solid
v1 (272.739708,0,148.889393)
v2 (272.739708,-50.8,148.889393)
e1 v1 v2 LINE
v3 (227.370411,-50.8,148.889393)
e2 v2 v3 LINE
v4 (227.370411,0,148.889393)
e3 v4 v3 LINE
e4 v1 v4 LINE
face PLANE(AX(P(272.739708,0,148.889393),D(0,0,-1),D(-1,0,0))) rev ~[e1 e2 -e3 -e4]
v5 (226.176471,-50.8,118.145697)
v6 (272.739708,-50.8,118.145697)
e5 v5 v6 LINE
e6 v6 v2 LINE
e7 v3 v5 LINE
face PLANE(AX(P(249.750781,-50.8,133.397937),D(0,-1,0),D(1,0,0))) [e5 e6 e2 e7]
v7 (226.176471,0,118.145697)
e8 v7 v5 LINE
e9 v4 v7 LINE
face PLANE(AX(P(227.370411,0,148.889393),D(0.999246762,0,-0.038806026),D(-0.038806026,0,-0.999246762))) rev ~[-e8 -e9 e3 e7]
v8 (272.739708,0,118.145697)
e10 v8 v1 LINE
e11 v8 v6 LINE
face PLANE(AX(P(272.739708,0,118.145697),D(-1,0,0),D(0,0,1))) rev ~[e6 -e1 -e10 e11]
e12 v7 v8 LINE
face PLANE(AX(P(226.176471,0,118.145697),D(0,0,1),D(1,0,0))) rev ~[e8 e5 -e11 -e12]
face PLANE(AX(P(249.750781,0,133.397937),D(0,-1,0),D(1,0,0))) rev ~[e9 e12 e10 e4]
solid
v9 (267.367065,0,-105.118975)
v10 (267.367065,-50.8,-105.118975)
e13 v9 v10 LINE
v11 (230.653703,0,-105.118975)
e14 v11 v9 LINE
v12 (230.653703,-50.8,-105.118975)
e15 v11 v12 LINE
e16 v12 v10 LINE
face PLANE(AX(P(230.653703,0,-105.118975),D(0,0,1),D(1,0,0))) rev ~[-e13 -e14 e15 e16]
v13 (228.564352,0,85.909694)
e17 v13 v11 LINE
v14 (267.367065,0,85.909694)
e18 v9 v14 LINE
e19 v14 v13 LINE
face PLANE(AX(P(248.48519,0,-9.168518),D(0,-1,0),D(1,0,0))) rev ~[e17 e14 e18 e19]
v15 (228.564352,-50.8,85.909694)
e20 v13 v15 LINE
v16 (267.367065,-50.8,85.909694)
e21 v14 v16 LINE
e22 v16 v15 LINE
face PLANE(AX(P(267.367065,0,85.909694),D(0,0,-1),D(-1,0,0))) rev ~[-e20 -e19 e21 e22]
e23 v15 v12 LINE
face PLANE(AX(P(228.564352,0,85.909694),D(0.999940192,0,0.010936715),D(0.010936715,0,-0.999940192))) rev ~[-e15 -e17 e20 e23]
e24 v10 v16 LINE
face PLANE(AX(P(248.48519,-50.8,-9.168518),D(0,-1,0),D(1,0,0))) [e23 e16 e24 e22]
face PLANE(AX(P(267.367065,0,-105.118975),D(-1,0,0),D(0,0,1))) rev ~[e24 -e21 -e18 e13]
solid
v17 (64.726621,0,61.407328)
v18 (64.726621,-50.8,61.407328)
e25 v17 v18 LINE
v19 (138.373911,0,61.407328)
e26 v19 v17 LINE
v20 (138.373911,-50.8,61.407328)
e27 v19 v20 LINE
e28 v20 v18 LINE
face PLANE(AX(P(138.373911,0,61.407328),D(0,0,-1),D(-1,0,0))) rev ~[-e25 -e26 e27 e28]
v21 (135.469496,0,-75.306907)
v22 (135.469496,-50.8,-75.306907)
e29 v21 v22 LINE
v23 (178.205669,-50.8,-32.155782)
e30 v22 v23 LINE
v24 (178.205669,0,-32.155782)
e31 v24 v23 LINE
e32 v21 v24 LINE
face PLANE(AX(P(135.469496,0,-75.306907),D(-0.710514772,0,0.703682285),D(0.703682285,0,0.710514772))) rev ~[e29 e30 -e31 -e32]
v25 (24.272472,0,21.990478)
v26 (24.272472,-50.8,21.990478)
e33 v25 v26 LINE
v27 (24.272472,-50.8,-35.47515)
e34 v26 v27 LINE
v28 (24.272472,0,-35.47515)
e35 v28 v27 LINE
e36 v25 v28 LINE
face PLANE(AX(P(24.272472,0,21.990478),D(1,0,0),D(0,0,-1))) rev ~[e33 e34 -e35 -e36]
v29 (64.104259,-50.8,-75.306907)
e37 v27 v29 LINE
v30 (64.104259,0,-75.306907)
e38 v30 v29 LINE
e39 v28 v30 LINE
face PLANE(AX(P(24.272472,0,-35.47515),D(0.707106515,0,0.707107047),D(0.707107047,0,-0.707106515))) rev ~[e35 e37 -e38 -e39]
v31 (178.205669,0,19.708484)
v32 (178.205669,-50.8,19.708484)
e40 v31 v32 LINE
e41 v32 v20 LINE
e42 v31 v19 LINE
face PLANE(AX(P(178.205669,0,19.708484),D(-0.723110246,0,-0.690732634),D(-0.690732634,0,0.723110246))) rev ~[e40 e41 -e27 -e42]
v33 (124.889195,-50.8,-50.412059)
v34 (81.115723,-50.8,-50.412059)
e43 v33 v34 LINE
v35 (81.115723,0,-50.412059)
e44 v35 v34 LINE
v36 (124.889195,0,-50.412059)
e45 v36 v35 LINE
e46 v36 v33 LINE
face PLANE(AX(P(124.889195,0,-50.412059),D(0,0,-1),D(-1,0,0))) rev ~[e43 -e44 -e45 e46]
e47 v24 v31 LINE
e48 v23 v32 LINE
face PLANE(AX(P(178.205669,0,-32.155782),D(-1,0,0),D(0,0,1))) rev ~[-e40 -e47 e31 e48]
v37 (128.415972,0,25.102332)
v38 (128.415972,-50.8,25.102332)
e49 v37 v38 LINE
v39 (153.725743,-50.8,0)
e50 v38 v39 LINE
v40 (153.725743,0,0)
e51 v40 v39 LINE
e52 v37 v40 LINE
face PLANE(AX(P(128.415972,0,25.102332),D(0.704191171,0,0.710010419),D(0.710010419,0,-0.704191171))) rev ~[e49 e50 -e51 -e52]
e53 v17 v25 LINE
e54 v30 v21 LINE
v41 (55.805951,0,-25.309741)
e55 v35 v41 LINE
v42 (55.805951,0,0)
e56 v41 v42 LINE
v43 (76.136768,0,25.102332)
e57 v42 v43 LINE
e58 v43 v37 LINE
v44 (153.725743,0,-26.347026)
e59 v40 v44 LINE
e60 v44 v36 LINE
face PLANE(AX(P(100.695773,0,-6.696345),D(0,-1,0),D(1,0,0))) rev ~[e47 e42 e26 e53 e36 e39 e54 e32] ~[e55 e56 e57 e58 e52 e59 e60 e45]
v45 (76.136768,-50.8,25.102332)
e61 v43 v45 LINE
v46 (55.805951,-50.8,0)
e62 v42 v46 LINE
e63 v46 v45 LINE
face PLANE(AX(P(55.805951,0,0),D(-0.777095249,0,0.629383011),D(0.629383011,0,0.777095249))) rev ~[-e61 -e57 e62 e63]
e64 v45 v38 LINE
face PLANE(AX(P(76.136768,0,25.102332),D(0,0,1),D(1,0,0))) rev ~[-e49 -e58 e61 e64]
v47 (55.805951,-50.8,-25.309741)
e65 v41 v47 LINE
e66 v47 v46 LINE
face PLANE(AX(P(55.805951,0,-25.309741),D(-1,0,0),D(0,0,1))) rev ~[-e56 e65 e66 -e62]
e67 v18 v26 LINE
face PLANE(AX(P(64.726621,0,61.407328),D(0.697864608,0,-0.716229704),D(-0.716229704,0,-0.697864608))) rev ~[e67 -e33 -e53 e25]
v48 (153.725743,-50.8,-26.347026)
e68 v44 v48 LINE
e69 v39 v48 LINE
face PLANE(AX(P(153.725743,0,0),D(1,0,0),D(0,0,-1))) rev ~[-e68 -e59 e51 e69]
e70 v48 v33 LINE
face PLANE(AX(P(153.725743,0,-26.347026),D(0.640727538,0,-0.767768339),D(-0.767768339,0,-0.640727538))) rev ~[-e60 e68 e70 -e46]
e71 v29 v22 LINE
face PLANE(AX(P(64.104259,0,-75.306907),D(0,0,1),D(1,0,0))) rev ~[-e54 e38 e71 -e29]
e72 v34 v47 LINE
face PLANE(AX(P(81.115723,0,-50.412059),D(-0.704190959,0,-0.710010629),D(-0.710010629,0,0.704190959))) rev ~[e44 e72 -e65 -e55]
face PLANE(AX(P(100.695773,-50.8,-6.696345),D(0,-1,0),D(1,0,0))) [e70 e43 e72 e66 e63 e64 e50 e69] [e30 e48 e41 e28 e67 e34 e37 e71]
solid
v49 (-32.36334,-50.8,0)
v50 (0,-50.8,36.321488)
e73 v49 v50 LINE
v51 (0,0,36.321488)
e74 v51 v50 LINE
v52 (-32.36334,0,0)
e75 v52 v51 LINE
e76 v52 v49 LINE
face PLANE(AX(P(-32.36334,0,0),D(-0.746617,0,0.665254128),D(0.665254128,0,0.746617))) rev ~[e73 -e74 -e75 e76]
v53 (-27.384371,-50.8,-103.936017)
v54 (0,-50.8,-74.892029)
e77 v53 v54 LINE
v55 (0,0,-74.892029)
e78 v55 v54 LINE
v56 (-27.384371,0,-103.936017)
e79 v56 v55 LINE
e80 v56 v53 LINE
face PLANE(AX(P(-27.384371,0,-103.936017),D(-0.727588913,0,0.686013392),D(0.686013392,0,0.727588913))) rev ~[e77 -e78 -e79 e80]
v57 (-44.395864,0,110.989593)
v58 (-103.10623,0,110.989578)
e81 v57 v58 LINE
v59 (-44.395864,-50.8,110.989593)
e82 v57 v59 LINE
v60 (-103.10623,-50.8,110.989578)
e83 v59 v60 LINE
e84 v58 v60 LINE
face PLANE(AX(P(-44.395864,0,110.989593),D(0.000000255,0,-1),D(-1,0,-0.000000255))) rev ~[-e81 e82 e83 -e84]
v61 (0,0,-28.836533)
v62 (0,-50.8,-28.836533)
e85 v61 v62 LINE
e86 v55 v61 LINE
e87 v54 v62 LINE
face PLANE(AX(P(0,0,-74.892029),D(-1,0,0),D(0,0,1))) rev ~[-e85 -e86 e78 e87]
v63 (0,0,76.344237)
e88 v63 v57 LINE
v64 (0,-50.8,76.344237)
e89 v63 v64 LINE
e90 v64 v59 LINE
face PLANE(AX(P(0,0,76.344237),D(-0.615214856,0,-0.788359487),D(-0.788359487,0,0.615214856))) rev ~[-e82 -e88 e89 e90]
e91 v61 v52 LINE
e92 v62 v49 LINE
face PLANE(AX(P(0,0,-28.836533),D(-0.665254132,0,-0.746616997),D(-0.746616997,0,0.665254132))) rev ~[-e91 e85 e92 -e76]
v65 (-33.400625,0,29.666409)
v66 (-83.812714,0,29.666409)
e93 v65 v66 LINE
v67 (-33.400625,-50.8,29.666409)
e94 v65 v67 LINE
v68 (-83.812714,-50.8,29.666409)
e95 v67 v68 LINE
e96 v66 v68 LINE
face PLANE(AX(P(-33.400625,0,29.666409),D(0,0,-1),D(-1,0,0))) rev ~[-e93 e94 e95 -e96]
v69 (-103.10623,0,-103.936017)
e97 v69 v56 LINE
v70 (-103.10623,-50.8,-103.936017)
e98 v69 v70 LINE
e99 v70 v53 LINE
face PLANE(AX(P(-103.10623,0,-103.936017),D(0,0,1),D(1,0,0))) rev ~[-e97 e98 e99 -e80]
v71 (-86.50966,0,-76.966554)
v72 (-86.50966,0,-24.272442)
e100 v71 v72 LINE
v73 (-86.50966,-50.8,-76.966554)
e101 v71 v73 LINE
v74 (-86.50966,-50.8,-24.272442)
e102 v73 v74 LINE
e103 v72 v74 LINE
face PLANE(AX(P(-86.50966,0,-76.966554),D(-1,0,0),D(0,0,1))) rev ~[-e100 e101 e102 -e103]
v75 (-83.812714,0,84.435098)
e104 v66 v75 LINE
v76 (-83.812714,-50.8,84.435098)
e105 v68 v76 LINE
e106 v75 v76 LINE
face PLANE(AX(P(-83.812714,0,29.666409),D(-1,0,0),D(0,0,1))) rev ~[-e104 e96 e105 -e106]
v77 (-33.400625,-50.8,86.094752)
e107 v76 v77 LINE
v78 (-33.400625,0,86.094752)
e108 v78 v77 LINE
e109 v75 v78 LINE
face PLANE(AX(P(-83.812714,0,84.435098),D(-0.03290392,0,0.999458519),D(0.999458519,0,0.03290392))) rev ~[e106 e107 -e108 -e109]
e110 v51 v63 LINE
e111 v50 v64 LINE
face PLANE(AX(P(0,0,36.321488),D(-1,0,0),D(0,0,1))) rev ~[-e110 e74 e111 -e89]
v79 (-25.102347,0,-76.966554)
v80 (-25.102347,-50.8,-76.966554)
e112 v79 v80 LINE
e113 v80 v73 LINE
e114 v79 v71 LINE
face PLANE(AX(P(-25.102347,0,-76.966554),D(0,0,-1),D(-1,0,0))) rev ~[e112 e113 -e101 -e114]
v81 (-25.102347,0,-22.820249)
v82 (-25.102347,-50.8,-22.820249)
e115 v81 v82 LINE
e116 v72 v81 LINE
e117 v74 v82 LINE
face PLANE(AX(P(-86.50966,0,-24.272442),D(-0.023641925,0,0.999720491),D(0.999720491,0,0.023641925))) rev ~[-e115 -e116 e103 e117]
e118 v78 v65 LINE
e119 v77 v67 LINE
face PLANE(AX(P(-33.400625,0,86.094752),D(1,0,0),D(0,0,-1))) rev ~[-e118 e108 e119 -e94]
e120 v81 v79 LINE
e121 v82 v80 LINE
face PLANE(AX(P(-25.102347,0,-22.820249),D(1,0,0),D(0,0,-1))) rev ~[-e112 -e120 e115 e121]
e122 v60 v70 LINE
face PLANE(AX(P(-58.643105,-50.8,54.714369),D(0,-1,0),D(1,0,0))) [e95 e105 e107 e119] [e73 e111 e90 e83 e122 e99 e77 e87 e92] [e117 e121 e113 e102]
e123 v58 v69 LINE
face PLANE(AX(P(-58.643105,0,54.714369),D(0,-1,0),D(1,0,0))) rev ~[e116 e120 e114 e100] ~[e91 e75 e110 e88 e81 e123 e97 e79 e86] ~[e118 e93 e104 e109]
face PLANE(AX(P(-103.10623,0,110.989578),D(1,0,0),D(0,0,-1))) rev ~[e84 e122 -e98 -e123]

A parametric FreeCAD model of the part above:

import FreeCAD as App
import Part
import Sketcher

V = App.Vector
Q = App.Units.Quantity

doc = App.newDocument("Part")
params = doc.addObject("Spreadsheet::Sheet", "Params")
for row, (alias, value) in enumerate([
    ("pad1_length", "2 in"),
], start=1):
    params.set(f"A{row}", alias)
    params.set(f"B{row}", "=" + value)
    params.setAlias(f"B{row}", alias)

body = doc.addObject("PartDesign::Body", "Body")
body.AllowCompound = True

# Sketch on XZ plane
sketch1 = body.newObject("Sketcher::SketchObject", "Sketch")
sketch1.AttachmentSupport = (doc.getObject("XZ_Plane"), [""])
sketch1.MapMode = "FlatFace"
sketch1.addGeometry([
    Part.LineSegment(V(-44, 111, 0), V(-103, 111, 0)),  # 0
    Part.LineSegment(V(-103, 111, 0), V(-103, -104, 0)),  # 1
    Part.LineSegment(V(-103, -104, 0), V(-27, -104, 0)),  # 2
    Part.LineSegment(V(-27, -104, 0), V(0, -75, 0)),  # 3
    Part.LineSegment(V(0, -75, 0), V(0, -29, 0)),  # 4
    Part.LineSegment(V(0, -29, 0), V(-32, 0, 0)),  # 5
    Part.LineSegment(V(-32, 0, 0), V(0, 36, 0)),  # 6
    Part.LineSegment(V(0, 36, 0), V(0, 76, 0)),  # 7
    Part.LineSegment(V(0, 76, 0), V(-44, 111, 0)),  # 8
    Part.LineSegment(V(-25, -77, 0), V(-87, -77, 0)),  # 9
    Part.LineSegment(V(-87, -77, 0), V(-87, -24, 0)),  # 10
    Part.LineSegment(V(-87, -24, 0), V(-25, -23, 0)),  # 11
    Part.LineSegment(V(-25, -23, 0), V(-25, -77, 0)),  # 12
    Part.LineSegment(V(-33, 30, 0), V(-84, 30, 0)),  # 13
    Part.LineSegment(V(-84, 30, 0), V(-84, 84, 0)),  # 14
    Part.LineSegment(V(-84, 84, 0), V(-33, 86, 0)),  # 15
    Part.LineSegment(V(-33, 86, 0), V(-33, 30, 0)),  # 16
    Part.LineSegment(V(24, -35, 0), V(64, -75, 0)),  # 17
    Part.LineSegment(V(64, -75, 0), V(135, -75, 0)),  # 18
    Part.LineSegment(V(135, -75, 0), V(178, -32, 0)),  # 19
    Part.LineSegment(V(178, -32, 0), V(178, 20, 0)),  # 20
    Part.LineSegment(V(178, 20, 0), V(138, 61, 0)),  # 21
    Part.LineSegment(V(138, 61, 0), V(65, 61, 0)),  # 22
    Part.LineSegment(V(65, 61, 0), V(24, 22, 0)),  # 23
    Part.LineSegment(V(24, 22, 0), V(24, -35, 0)),  # 24
    Part.LineSegment(V(56, -25, 0), V(56, 0, 0)),  # 25
    Part.LineSegment(V(56, 0, 0), V(76, 25, 0)),  # 26
    Part.LineSegment(V(76, 25, 0), V(128, 25, 0)),  # 27
    Part.LineSegment(V(128, 25, 0), V(154, 0, 0)),  # 28
    Part.LineSegment(V(154, 0, 0), V(154, -26, 0)),  # 29
    Part.LineSegment(V(154, -26, 0), V(125, -50, 0)),  # 30
    Part.LineSegment(V(125, -50, 0), V(81, -50, 0)),  # 31
    Part.LineSegment(V(81, -50, 0), V(56, -25, 0)),  # 32
    Part.LineSegment(V(267, 86, 0), V(229, 86, 0)),  # 33
    Part.LineSegment(V(229, 86, 0), V(231, -105, 0)),  # 34
    Part.LineSegment(V(231, -105, 0), V(267, -105, 0)),  # 35
    Part.LineSegment(V(267, -105, 0), V(267, 86, 0)),  # 36
    Part.LineSegment(V(273, 149, 0), V(227, 149, 0)),  # 37
    Part.LineSegment(V(227, 149, 0), V(226, 118, 0)),  # 38
    Part.LineSegment(V(226, 118, 0), V(273, 118, 0)),  # 39
    Part.LineSegment(V(273, 118, 0), V(273, 149, 0)),  # 40
], False)
sketch1.addConstraint([
    Sketcher.Constraint("Coincident", 0, 2, 1, 1),
    Sketcher.Constraint("Coincident", 1, 2, 2, 1),
    Sketcher.Constraint("Coincident", 2, 2, 3, 1),
    Sketcher.Constraint("Coincident", 3, 2, 4, 1),
    Sketcher.Constraint("Coincident", 4, 2, 5, 1),
    Sketcher.Constraint("Coincident", 5, 2, 6, 1),
    Sketcher.Constraint("Coincident", 6, 2, 7, 1),
    Sketcher.Constraint("Coincident", 7, 2, 8, 1),
    Sketcher.Constraint("Coincident", 8, 2, 0, 1),
    Sketcher.Constraint("Coincident", 9, 2, 10, 1),
    Sketcher.Constraint("Coincident", 10, 2, 11, 1),
    Sketcher.Constraint("Coincident", 11, 2, 12, 1),
    Sketcher.Constraint("Coincident", 12, 2, 9, 1),
    Sketcher.Constraint("Coincident", 13, 2, 14, 1),
    Sketcher.Constraint("Coincident", 14, 2, 15, 1),
    Sketcher.Constraint("Coincident", 15, 2, 16, 1),
    Sketcher.Constraint("Coincident", 16, 2, 13, 1),
    Sketcher.Constraint("Coincident", 17, 2, 18, 1),
    Sketcher.Constraint("Coincident", 18, 2, 19, 1),
    Sketcher.Constraint("Coincident", 19, 2, 20, 1),
    Sketcher.Constraint("Coincident", 20, 2, 21, 1),
    Sketcher.Constraint("Coincident", 21, 2, 22, 1),
    Sketcher.Constraint("Coincident", 22, 2, 23, 1),
    Sketcher.Constraint("Coincident", 23, 2, 24, 1),
    Sketcher.Constraint("Coincident", 24, 2, 17, 1),
    Sketcher.Constraint("Coincident", 25, 2, 26, 1),
    Sketcher.Constraint("Coincident", 26, 2, 27, 1),
    Sketcher.Constraint("Coincident", 27, 2, 28, 1),
    Sketcher.Constraint("Coincident", 28, 2, 29, 1),
    Sketcher.Constraint("Coincident", 29, 2, 30, 1),
    Sketcher.Constraint("Coincident", 30, 2, 31, 1),
    Sketcher.Constraint("Coincident", 31, 2, 32, 1),
    Sketcher.Constraint("Coincident", 32, 2, 25, 1),
    Sketcher.Constraint("Coincident", 33, 2, 34, 1),
    Sketcher.Constraint("Coincident", 34, 2, 35, 1),
    Sketcher.Constraint("Coincident", 35, 2, 36, 1),
    Sketcher.Constraint("Coincident", 36, 2, 33, 1),
    Sketcher.Constraint("Coincident", 37, 2, 38, 1),
    Sketcher.Constraint("Coincident", 38, 2, 39, 1),
    Sketcher.Constraint("Coincident", 39, 2, 40, 1),
    Sketcher.Constraint("Coincident", 40, 2, 37, 1),
    Sketcher.Constraint("Vertical", 1),
    Sketcher.Constraint("Horizontal", 2),
    Sketcher.Constraint("Vertical", 4),
    Sketcher.Constraint("Vertical", 7),
    Sketcher.Constraint("Horizontal", 9),
    Sketcher.Constraint("Vertical", 10),
    Sketcher.Constraint("Vertical", 12),
    Sketcher.Constraint("Horizontal", 13),
    Sketcher.Constraint("Vertical", 14),
    Sketcher.Constraint("Vertical", 16),
    Sketcher.Constraint("Horizontal", 18),
    Sketcher.Constraint("Vertical", 20),
    Sketcher.Constraint("Horizontal", 22),
    Sketcher.Constraint("Vertical", 24),
    Sketcher.Constraint("Vertical", 25),
    Sketcher.Constraint("Horizontal", 27),
    Sketcher.Constraint("Vertical", 29),
    Sketcher.Constraint("Horizontal", 31),
    Sketcher.Constraint("Horizontal", 33),
    Sketcher.Constraint("Horizontal", 35),
    Sketcher.Constraint("Vertical", 36),
    Sketcher.Constraint("Horizontal", 37),
    Sketcher.Constraint("Horizontal", 39),
    Sketcher.Constraint("Vertical", 40),
    Sketcher.Constraint("PointOnObject", 3, 2, -2),
    Sketcher.Constraint("PointOnObject", 5, 2, -1),
    Sketcher.Constraint("PointOnObject", 6, 2, -2),
    Sketcher.Constraint("PointOnObject", 25, 2, -1),
    Sketcher.Constraint("PointOnObject", 28, 2, -1),
    Sketcher.Constraint("Perpendicular", 5, 6),
    Sketcher.Constraint("Parallel", 28, 32),
    Sketcher.Constraint("Angle", 0, Q("-179.999985 deg")),
    Sketcher.Constraint("DistanceX", 18, 2, 28, 2, Q("0.7187499 in")),
    Sketcher.Constraint("Distance", 15, 50.439401),
    Sketcher.Constraint("Distance", 19, 60.7322),
    Sketcher.Constraint("DistanceX", 2, 1, 2, 2, 75.721859),
    Sketcher.Constraint("DistanceX", 13, 2, 13, 1, 50.412089),
    Sketcher.Constraint("DistanceX", 22, 2, 22, 1, 73.64729),
    Sketcher.Constraint("DistanceX", 31, 2, 31, 1, 43.773472),
    Sketcher.Constraint("DistanceY", 7, 1, 7, 2, 40.022749),
    Sketcher.Constraint("DistanceY", 14, 1, 14, 2, 54.768689),
    Sketcher.Constraint("DistanceY", 25, 1, 25, 2, 25.309741),
    Sketcher.Constraint("DistanceY", 36, 1, 36, 2, 191.028669),
    Sketcher.Constraint("DistanceY", 24, 2, 11, 2, 12.654901),
    Sketcher.Constraint("DistanceX", 30, 2, 18, 2, 10.580301),
    Sketcher.Constraint("DistanceY", 33, 2, 37, 2, 62.979699),
    Sketcher.Constraint("DistanceX", 21, 2, 37, 2, 88.9965),
    Sketcher.Constraint("DistanceX", 20, 2, 38, 2, 47.970802),
    Sketcher.Constraint("Distance", 3, 39.918129),
    Sketcher.Constraint("Distance", 8, 56.314238),
    Sketcher.Constraint("Distance", 11, 61.424482),
    Sketcher.Constraint("Distance", 28, 35.647042),
    Sketcher.Constraint("Distance", 38, 30.766871),
    Sketcher.Constraint("DistanceX", 9, 2, 9, 1, 61.407313),
    Sketcher.Constraint("DistanceX", 18, 1, 18, 2, 71.365237),
    Sketcher.Constraint("DistanceX", 27, 1, 27, 2, 52.279204),
    Sketcher.Constraint("DistanceX", 33, 2, 33, 1, 38.802713),
    Sketcher.Constraint("DistanceX", 35, 1, 35, 2, 36.713362),
    Sketcher.Constraint("DistanceX", 37, 2, 37, 1, 45.369297),
    Sketcher.Constraint("DistanceX", 39, 1, 39, 2, 46.563237),
    Sketcher.Constraint("DistanceY", 1, 2, 1, 1, 214.925595),
    Sketcher.Constraint("DistanceY", 4, 1, 4, 2, 46.055496),
    Sketcher.Constraint("DistanceY", 10, 1, 10, 2, 52.694112),
    Sketcher.Constraint("DistanceY", 20, 1, 20, 2, 51.864266),
    Sketcher.Constraint("DistanceY", 24, 2, 24, 1, 57.465628),
    Sketcher.Constraint("DistanceY", 29, 2, 29, 1, 26.347026),
    Sketcher.Constraint("DistanceX", 0, 2, -1, 1, 103.10623),
    Sketcher.Constraint("DistanceY", 3, 2, -1, 1, 74.892029),
    Sketcher.Constraint("DistanceX", 5, 2, -1, 1, 32.36334),
    Sketcher.Constraint("DistanceX", 9, 2, -1, 1, 86.50966),
    Sketcher.Constraint("DistanceY", 11, 2, -1, 1, 22.820249),
    Sketcher.Constraint("DistanceY", -1, 1, 13, 2, 29.666409),
    Sketcher.Constraint("DistanceX", -1, 1, 17, 2, 64.104259),
    Sketcher.Constraint("DistanceX", -1, 1, 19, 2, 178.205669),
    Sketcher.Constraint("DistanceX", -1, 1, 25, 2, 55.805951),
    Sketcher.Constraint("DistanceX", -1, 1, 26, 2, 76.136768),
    Sketcher.Constraint("DistanceX", 14, 2, 8, 2, 39.41685),
    Sketcher.Constraint("DistanceY", 17, 2, 3, 2, 0.414878),
    Sketcher.Constraint("DistanceY", 19, 2, 21, 2, 93.56311),
    Sketcher.Constraint("DistanceX", 23, 2, 22, 2, 40.454149),
    Sketcher.Constraint("DistanceY", 20, 2, 33, 2, 66.20121),
    Sketcher.Constraint("DistanceX", 21, 2, 33, 2, 90.190441),
])
pad1 = body.newObject("PartDesign::Pad", "Pad")
pad1.Profile = sketch1
pad1.setExpression("Length", "Params.pad1_length")

doc.recompute()
